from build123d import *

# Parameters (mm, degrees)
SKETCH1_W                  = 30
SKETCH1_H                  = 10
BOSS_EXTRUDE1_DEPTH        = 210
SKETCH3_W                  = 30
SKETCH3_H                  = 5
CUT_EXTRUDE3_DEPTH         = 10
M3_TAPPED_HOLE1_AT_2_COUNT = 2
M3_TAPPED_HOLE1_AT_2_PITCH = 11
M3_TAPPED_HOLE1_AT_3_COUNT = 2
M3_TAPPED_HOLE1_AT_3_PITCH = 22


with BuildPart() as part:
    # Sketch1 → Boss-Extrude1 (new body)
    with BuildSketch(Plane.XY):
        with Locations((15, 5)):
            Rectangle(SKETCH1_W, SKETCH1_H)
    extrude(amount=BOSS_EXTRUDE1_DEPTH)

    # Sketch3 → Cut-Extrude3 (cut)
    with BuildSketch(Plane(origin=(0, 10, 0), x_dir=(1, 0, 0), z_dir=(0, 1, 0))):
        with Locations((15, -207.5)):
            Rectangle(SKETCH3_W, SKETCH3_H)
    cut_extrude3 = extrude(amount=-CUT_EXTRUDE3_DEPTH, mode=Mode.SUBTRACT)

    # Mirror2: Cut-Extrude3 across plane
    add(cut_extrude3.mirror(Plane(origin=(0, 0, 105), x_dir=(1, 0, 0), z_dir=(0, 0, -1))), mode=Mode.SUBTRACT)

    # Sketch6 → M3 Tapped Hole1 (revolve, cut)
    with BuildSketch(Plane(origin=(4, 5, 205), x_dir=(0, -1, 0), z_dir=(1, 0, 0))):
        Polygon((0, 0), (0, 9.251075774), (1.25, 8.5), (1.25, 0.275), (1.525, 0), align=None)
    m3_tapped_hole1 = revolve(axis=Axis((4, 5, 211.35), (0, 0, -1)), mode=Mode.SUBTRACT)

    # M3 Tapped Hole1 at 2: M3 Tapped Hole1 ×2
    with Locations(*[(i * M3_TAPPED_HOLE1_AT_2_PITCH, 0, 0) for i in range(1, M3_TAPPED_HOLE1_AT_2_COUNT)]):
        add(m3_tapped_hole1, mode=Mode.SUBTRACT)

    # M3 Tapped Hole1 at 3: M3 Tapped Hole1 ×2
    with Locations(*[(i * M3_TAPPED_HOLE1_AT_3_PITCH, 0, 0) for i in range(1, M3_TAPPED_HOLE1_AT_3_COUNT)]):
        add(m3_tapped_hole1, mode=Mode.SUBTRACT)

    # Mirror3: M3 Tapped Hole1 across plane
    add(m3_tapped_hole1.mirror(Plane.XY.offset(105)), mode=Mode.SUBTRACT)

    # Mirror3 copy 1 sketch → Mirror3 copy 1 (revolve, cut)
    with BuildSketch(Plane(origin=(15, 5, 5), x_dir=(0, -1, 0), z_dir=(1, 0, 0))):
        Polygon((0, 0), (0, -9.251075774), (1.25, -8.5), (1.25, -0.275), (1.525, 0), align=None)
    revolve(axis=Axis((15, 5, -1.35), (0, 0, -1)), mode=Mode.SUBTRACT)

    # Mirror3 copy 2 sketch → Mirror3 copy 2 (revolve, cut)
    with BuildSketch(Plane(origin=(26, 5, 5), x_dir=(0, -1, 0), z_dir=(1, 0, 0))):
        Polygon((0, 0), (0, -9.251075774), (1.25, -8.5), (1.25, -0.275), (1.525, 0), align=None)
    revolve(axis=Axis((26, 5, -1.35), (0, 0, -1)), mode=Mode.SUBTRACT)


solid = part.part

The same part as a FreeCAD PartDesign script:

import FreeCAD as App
import Part
import Sketcher
Q = App.Units.Quantity

doc = App.newDocument("Part")
body = doc.addObject("PartDesign::Body", "Body")

# Sketch on XY plane
sketch1 = doc.addObject("Sketcher::SketchObject", "Sketch")
body.addObject(sketch1)
sketch1.AttachmentSupport = (doc.XY_Plane, [""])
sketch1.MapMode = "FlatFace"
sketch1.addGeometry(Part.LineSegment(App.Vector(0, 10, 0), App.Vector(0, 0, 0)), False)
sketch1.addGeometry(Part.LineSegment(App.Vector(0, 0, 0), App.Vector(30, 0, 0)), False)
sketch1.addGeometry(Part.LineSegment(App.Vector(30, 0, 0), App.Vector(30, 10, 0)), False)
sketch1.addGeometry(Part.LineSegment(App.Vector(30, 10, 0), App.Vector(0, 10, 0)), False)
sketch1.addConstraint(Sketcher.Constraint("Coincident", 0, 2, 1, 1))
sketch1.addConstraint(Sketcher.Constraint("Coincident", 1, 2, 2, 1))
sketch1.addConstraint(Sketcher.Constraint("Coincident", 2, 2, 3, 1))
sketch1.addConstraint(Sketcher.Constraint("Coincident", 3, 2, 0, 1))
sketch1.addConstraint(Sketcher.Constraint("Vertical", 0))
sketch1.addConstraint(Sketcher.Constraint("Horizontal", 1))
sketch1.addConstraint(Sketcher.Constraint("Vertical", 2))
sketch1.addConstraint(Sketcher.Constraint("Horizontal", 3))
sketch1.addConstraint(Sketcher.Constraint("Coincident", 0, 2, -1, 1))
sketch1.addConstraint(Sketcher.Constraint("DistanceX", 1, 1, 1, 2, 30.0))
sketch1.addConstraint(Sketcher.Constraint("DistanceY", 0, 2, 0, 1, 10.0))
pad1 = doc.addObject("PartDesign::Pad", "Pad")
body.addObject(pad1)
pad1.Profile = sketch1
pad1.Length = 210

# Sketch on XZ plane
sketch2 = doc.addObject("Sketcher::SketchObject", "Sketch001")
body.addObject(sketch2)
sketch2.AttachmentSupport = (doc.XZ_Plane, [""])
sketch2.MapMode = "FlatFace"
sketch2.AttachmentOffset = App.Placement(App.Vector(0, 0, -10), App.Rotation())
sketch2.addGeometry(Part.LineSegment(App.Vector(0, 205, 0), App.Vector(0, 210, 0)), False)
sketch2.addGeometry(Part.LineSegment(App.Vector(0, 210, 0), App.Vector(30, 210, 0)), False)
sketch2.addGeometry(Part.LineSegment(App.Vector(30, 210, 0), App.Vector(30, 205, 0)), False)
sketch2.addGeometry(Part.LineSegment(App.Vector(30, 205, 0), App.Vector(0, 205, 0)), False)
sketch2.addConstraint(Sketcher.Constraint("Coincident", 0, 2, 1, 1))
sketch2.addConstraint(Sketcher.Constraint("Coincident", 1, 2, 2, 1))
sketch2.addConstraint(Sketcher.Constraint("Coincident", 2, 2, 3, 1))
sketch2.addConstraint(Sketcher.Constraint("Coincident", 3, 2, 0, 1))
sketch2.addConstraint(Sketcher.Constraint("Vertical", 0))
sketch2.addConstraint(Sketcher.Constraint("Horizontal", 1))
sketch2.addConstraint(Sketcher.Constraint("Vertical", 2))
sketch2.addConstraint(Sketcher.Constraint("Horizontal", 3))
sketch2.addConstraint(Sketcher.Constraint("PointOnObject", 0, 2, -2))
sketch2.addConstraint(Sketcher.Constraint("DistanceX", 1, 1, 1, 2, 30.0))
sketch2.addConstraint(Sketcher.Constraint("DistanceY", 0, 1, 0, 2, 5.0))
sketch2.addConstraint(Sketcher.Constraint("DistanceY", -1, 1, 0, 2, 210.0))
pocket1 = doc.addObject("PartDesign::Pocket", "Pocket")
body.addObject(pocket1)
pocket1.Profile = sketch2
pocket1.Length = 10
pocket1.Reversed = True
doc.recompute()

datumplane = doc.addObject("PartDesign::Plane", "DatumPlane")
body.addObject(datumplane)
datumplane.AttachmentSupport = (doc.XY_Plane, [""])
datumplane.MapMode = "FlatFace"
datumplane.AttachmentOffset = App.Placement(App.Vector(0, 0, 105), App.Rotation())
mirrored = doc.addObject("PartDesign::Mirrored", "Mirrored")
body.addObject(mirrored)
mirrored.Originals = [pocket1]
mirrored.MirrorPlane = (datumplane, [""])
body.Tip = mirrored

# Sketch on YZ plane
sketch3 = doc.addObject("Sketcher::SketchObject", "Sketch002")
body.addObject(sketch3)
sketch3.AttachmentSupport = (doc.YZ_Plane, [""])
sketch3.MapMode = "FlatFace"
sketch3.AttachmentOffset = App.Placement(App.Vector(0, 0, 4), App.Rotation())
sketch3.addGeometry(Part.LineSegment(App.Vector(5, 195.748924, 0), App.Vector(5, 205, 0)), False)
sketch3.addGeometry(Part.LineSegment(App.Vector(5, 205, 0), App.Vector(3.475, 205, 0)), False)
sketch3.addGeometry(Part.LineSegment(App.Vector(3.475, 205, 0), App.Vector(3.75, 204.725, 0)), False)
sketch3.addGeometry(Part.LineSegment(App.Vector(3.75, 204.725, 0), App.Vector(3.75, 196.5, 0)), False)
sketch3.addGeometry(Part.LineSegment(App.Vector(3.75, 196.5, 0), App.Vector(5, 195.748924, 0)), False)
sketch3.addGeometry(Part.LineSegment(App.Vector(5, 205, 0), App.Vector(5, 195.748924, 0)), True)  # axis
sketch3.addConstraint(Sketcher.Constraint("Coincident", 0, 2, 1, 1))
sketch3.addConstraint(Sketcher.Constraint("Coincident", 1, 2, 2, 1))
sketch3.addConstraint(Sketcher.Constraint("Coincident", 2, 2, 3, 1))
sketch3.addConstraint(Sketcher.Constraint("Coincident", 3, 2, 4, 1))
sketch3.addConstraint(Sketcher.Constraint("Coincident", 4, 2, 0, 1))
sketch3.addConstraint(Sketcher.Constraint("Vertical", 0))
sketch3.addConstraint(Sketcher.Constraint("Horizontal", 1))
sketch3.addConstraint(Sketcher.Constraint("Vertical", 3))
sketch3.addConstraint(Sketcher.Constraint("Vertical", 5))
sketch3.addConstraint(Sketcher.Constraint("Coincident", 5, 1, 0, 2))
sketch3.addConstraint(Sketcher.Constraint("Equal", 0, 5))
sketch3.addConstraint(Sketcher.Constraint("Angle", 2, Q("-45 deg")))
sketch3.addConstraint(Sketcher.Constraint("Angle", 4, Q("-31 deg")))
sketch3.addConstraint(Sketcher.Constraint("DistanceX", -1, 1, 0, 2, 5.0))
sketch3.addConstraint(Sketcher.Constraint("DistanceY", -1, 1, 0, 2, 205.0))
sketch3.addConstraint(Sketcher.Constraint("DistanceY", -1, 1, 3, 2, 196.5))
sketch3.addConstraint(Sketcher.Constraint("DistanceX", 1, 2, 1, 1, 1.525))
sketch3.addConstraint(Sketcher.Constraint("DistanceY", 3, 2, 3, 1, 8.225))
groove = doc.addObject("PartDesign::Groove", "Groove")
body.addObject(groove)
groove.Profile = sketch3
groove.ReferenceAxis = (sketch3, ["Axis0"])
groove.Angle = 360
doc.recompute()

linearpattern = doc.addObject("PartDesign::LinearPattern", "LinearPattern")
body.addObject(linearpattern)
linearpattern.Originals = [groove]
linearpattern.Direction = (doc.X_Axis, [""])
linearpattern.Mode = "offset"
linearpattern.Offset = 11
linearpattern.Occurrences = 2
body.Tip = linearpattern
doc.recompute()

linearpattern2 = doc.addObject("PartDesign::LinearPattern", "LinearPattern001")
body.addObject(linearpattern2)
linearpattern2.Originals = [groove]
linearpattern2.Direction = (doc.X_Axis, [""])
linearpattern2.Mode = "offset"
linearpattern2.Offset = 22
linearpattern2.Occurrences = 2
body.Tip = linearpattern2
doc.recompute()

datumplane2 = doc.addObject("PartDesign::Plane", "DatumPlane001")
body.addObject(datumplane2)
datumplane2.AttachmentSupport = (doc.XY_Plane, [""])
datumplane2.MapMode = "FlatFace"
datumplane2.AttachmentOffset = App.Placement(App.Vector(0, 0, 105), App.Rotation())
mirrored2 = doc.addObject("PartDesign::Mirrored", "Mirrored001")
body.addObject(mirrored2)
mirrored2.Originals = [groove]
mirrored2.MirrorPlane = (datumplane2, [""])
body.Tip = mirrored2

# Sketch on YZ plane
sketch4 = doc.addObject("Sketcher::SketchObject", "Sketch003")
body.addObject(sketch4)
sketch4.AttachmentSupport = (doc.YZ_Plane, [""])
sketch4.MapMode = "FlatFace"
sketch4.AttachmentOffset = App.Placement(App.Vector(0, 0, 15), App.Rotation())
sketch4.addGeometry(Part.LineSegment(App.Vector(5, 5, 0), App.Vector(5, 14.251076, 0)), False)
sketch4.addGeometry(Part.LineSegment(App.Vector(5, 14.251076, 0), App.Vector(3.75, 13.5, 0)), False)
sketch4.addGeometry(Part.LineSegment(App.Vector(3.75, 13.5, 0), App.Vector(3.75, 5.275, 0)), False)
sketch4.addGeometry(Part.LineSegment(App.Vector(3.75, 5.275, 0), App.Vector(3.475, 5, 0)), False)
sketch4.addGeometry(Part.LineSegment(App.Vector(3.475, 5, 0), App.Vector(5, 5, 0)), False)
sketch4.addGeometry(Part.LineSegment(App.Vector(5, 14.251076, 0), App.Vector(5, 5, 0)), True)  # axis
sketch4.addConstraint(Sketcher.Constraint("Coincident", 0, 2, 1, 1))
sketch4.addConstraint(Sketcher.Constraint("Coincident", 1, 2, 2, 1))
sketch4.addConstraint(Sketcher.Constraint("Coincident", 2, 2, 3, 1))
sketch4.addConstraint(Sketcher.Constraint("Coincident", 3, 2, 4, 1))
sketch4.addConstraint(Sketcher.Constraint("Coincident", 4, 2, 0, 1))
sketch4.addConstraint(Sketcher.Constraint("Vertical", 0))
sketch4.addConstraint(Sketcher.Constraint("Vertical", 2))
sketch4.addConstraint(Sketcher.Constraint("Horizontal", 4))
sketch4.addConstraint(Sketcher.Constraint("Vertical", 5))
sketch4.addConstraint(Sketcher.Constraint("Coincident", 5, 1, 0, 2))
sketch4.addConstraint(Sketcher.Constraint("Horizontal", 3, 2, 5, 2))
sketch4.addConstraint(Sketcher.Constraint("Angle", 1, Q("-149 deg")))
sketch4.addConstraint(Sketcher.Constraint("Angle", 3, Q("-135 deg")))
sketch4.addConstraint(Sketcher.Constraint("DistanceX", -1, 1, 0, 2, 5.0))
sketch4.addConstraint(Sketcher.Constraint("DistanceY", -1, 1, 3, 2, 5.0))
sketch4.addConstraint(Sketcher.Constraint("DistanceY", -1, 1, 1, 2, 13.5))
sketch4.addConstraint(Sketcher.Constraint("DistanceX", 4, 1, 4, 2, 1.525))
sketch4.addConstraint(Sketcher.Constraint("DistanceY", 2, 2, 2, 1, 8.225))
groove2 = doc.addObject("PartDesign::Groove", "Groove001")
body.addObject(groove2)
groove2.Profile = sketch4
groove2.ReferenceAxis = (sketch4, ["Axis0"])
groove2.Angle = 360

# Sketch on YZ plane
sketch5 = doc.addObject("Sketcher::SketchObject", "Sketch004")
body.addObject(sketch5)
sketch5.AttachmentSupport = (doc.YZ_Plane, [""])
sketch5.MapMode = "FlatFace"
sketch5.AttachmentOffset = App.Placement(App.Vector(0, 0, 26), App.Rotation())
sketch5.addGeometry(Part.LineSegment(App.Vector(5, 5, 0), App.Vector(5, 14.251076, 0)), False)
sketch5.addGeometry(Part.LineSegment(App.Vector(5, 14.251076, 0), App.Vector(3.75, 13.5, 0)), False)
sketch5.addGeometry(Part.LineSegment(App.Vector(3.75, 13.5, 0), App.Vector(3.75, 5.275, 0)), False)
sketch5.addGeometry(Part.LineSegment(App.Vector(3.75, 5.275, 0), App.Vector(3.475, 5, 0)), False)
sketch5.addGeometry(Part.LineSegment(App.Vector(3.475, 5, 0), App.Vector(5, 5, 0)), False)
sketch5.addGeometry(Part.LineSegment(App.Vector(5, 14.251076, 0), App.Vector(5, 5, 0)), True)  # axis
sketch5.addConstraint(Sketcher.Constraint("Coincident", 0, 2, 1, 1))
sketch5.addConstraint(Sketcher.Constraint("Coincident", 1, 2, 2, 1))
sketch5.addConstraint(Sketcher.Constraint("Coincident", 2, 2, 3, 1))
sketch5.addConstraint(Sketcher.Constraint("Coincident", 3, 2, 4, 1))
sketch5.addConstraint(Sketcher.Constraint("Coincident", 4, 2, 0, 1))
sketch5.addConstraint(Sketcher.Constraint("Vertical", 0))
sketch5.addConstraint(Sketcher.Constraint("Vertical", 2))
sketch5.addConstraint(Sketcher.Constraint("Horizontal", 4))
sketch5.addConstraint(Sketcher.Constraint("Vertical", 5))
sketch5.addConstraint(Sketcher.Constraint("Coincident", 5, 1, 0, 2))
sketch5.addConstraint(Sketcher.Constraint("Horizontal", 3, 2, 5, 2))
sketch5.addConstraint(Sketcher.Constraint("Angle", 1, Q("-149 deg")))
sketch5.addConstraint(Sketcher.Constraint("Angle", 3, Q("-135 deg")))
sketch5.addConstraint(Sketcher.Constraint("DistanceX", -1, 1, 0, 2, 5.0))
sketch5.addConstraint(Sketcher.Constraint("DistanceY", -1, 1, 3, 2, 5.0))
sketch5.addConstraint(Sketcher.Constraint("DistanceY", -1, 1, 1, 2, 13.5))
sketch5.addConstraint(Sketcher.Constraint("DistanceX", 4, 1, 4, 2, 1.525))
sketch5.addConstraint(Sketcher.Constraint("DistanceY", 2, 2, 2, 1, 8.225))
groove3 = doc.addObject("PartDesign::Groove", "Groove002")
body.addObject(groove3)
groove3.Profile = sketch5
groove3.ReferenceAxis = (sketch5, ["Axis0"])
groove3.Angle = 360

doc.recompute()
